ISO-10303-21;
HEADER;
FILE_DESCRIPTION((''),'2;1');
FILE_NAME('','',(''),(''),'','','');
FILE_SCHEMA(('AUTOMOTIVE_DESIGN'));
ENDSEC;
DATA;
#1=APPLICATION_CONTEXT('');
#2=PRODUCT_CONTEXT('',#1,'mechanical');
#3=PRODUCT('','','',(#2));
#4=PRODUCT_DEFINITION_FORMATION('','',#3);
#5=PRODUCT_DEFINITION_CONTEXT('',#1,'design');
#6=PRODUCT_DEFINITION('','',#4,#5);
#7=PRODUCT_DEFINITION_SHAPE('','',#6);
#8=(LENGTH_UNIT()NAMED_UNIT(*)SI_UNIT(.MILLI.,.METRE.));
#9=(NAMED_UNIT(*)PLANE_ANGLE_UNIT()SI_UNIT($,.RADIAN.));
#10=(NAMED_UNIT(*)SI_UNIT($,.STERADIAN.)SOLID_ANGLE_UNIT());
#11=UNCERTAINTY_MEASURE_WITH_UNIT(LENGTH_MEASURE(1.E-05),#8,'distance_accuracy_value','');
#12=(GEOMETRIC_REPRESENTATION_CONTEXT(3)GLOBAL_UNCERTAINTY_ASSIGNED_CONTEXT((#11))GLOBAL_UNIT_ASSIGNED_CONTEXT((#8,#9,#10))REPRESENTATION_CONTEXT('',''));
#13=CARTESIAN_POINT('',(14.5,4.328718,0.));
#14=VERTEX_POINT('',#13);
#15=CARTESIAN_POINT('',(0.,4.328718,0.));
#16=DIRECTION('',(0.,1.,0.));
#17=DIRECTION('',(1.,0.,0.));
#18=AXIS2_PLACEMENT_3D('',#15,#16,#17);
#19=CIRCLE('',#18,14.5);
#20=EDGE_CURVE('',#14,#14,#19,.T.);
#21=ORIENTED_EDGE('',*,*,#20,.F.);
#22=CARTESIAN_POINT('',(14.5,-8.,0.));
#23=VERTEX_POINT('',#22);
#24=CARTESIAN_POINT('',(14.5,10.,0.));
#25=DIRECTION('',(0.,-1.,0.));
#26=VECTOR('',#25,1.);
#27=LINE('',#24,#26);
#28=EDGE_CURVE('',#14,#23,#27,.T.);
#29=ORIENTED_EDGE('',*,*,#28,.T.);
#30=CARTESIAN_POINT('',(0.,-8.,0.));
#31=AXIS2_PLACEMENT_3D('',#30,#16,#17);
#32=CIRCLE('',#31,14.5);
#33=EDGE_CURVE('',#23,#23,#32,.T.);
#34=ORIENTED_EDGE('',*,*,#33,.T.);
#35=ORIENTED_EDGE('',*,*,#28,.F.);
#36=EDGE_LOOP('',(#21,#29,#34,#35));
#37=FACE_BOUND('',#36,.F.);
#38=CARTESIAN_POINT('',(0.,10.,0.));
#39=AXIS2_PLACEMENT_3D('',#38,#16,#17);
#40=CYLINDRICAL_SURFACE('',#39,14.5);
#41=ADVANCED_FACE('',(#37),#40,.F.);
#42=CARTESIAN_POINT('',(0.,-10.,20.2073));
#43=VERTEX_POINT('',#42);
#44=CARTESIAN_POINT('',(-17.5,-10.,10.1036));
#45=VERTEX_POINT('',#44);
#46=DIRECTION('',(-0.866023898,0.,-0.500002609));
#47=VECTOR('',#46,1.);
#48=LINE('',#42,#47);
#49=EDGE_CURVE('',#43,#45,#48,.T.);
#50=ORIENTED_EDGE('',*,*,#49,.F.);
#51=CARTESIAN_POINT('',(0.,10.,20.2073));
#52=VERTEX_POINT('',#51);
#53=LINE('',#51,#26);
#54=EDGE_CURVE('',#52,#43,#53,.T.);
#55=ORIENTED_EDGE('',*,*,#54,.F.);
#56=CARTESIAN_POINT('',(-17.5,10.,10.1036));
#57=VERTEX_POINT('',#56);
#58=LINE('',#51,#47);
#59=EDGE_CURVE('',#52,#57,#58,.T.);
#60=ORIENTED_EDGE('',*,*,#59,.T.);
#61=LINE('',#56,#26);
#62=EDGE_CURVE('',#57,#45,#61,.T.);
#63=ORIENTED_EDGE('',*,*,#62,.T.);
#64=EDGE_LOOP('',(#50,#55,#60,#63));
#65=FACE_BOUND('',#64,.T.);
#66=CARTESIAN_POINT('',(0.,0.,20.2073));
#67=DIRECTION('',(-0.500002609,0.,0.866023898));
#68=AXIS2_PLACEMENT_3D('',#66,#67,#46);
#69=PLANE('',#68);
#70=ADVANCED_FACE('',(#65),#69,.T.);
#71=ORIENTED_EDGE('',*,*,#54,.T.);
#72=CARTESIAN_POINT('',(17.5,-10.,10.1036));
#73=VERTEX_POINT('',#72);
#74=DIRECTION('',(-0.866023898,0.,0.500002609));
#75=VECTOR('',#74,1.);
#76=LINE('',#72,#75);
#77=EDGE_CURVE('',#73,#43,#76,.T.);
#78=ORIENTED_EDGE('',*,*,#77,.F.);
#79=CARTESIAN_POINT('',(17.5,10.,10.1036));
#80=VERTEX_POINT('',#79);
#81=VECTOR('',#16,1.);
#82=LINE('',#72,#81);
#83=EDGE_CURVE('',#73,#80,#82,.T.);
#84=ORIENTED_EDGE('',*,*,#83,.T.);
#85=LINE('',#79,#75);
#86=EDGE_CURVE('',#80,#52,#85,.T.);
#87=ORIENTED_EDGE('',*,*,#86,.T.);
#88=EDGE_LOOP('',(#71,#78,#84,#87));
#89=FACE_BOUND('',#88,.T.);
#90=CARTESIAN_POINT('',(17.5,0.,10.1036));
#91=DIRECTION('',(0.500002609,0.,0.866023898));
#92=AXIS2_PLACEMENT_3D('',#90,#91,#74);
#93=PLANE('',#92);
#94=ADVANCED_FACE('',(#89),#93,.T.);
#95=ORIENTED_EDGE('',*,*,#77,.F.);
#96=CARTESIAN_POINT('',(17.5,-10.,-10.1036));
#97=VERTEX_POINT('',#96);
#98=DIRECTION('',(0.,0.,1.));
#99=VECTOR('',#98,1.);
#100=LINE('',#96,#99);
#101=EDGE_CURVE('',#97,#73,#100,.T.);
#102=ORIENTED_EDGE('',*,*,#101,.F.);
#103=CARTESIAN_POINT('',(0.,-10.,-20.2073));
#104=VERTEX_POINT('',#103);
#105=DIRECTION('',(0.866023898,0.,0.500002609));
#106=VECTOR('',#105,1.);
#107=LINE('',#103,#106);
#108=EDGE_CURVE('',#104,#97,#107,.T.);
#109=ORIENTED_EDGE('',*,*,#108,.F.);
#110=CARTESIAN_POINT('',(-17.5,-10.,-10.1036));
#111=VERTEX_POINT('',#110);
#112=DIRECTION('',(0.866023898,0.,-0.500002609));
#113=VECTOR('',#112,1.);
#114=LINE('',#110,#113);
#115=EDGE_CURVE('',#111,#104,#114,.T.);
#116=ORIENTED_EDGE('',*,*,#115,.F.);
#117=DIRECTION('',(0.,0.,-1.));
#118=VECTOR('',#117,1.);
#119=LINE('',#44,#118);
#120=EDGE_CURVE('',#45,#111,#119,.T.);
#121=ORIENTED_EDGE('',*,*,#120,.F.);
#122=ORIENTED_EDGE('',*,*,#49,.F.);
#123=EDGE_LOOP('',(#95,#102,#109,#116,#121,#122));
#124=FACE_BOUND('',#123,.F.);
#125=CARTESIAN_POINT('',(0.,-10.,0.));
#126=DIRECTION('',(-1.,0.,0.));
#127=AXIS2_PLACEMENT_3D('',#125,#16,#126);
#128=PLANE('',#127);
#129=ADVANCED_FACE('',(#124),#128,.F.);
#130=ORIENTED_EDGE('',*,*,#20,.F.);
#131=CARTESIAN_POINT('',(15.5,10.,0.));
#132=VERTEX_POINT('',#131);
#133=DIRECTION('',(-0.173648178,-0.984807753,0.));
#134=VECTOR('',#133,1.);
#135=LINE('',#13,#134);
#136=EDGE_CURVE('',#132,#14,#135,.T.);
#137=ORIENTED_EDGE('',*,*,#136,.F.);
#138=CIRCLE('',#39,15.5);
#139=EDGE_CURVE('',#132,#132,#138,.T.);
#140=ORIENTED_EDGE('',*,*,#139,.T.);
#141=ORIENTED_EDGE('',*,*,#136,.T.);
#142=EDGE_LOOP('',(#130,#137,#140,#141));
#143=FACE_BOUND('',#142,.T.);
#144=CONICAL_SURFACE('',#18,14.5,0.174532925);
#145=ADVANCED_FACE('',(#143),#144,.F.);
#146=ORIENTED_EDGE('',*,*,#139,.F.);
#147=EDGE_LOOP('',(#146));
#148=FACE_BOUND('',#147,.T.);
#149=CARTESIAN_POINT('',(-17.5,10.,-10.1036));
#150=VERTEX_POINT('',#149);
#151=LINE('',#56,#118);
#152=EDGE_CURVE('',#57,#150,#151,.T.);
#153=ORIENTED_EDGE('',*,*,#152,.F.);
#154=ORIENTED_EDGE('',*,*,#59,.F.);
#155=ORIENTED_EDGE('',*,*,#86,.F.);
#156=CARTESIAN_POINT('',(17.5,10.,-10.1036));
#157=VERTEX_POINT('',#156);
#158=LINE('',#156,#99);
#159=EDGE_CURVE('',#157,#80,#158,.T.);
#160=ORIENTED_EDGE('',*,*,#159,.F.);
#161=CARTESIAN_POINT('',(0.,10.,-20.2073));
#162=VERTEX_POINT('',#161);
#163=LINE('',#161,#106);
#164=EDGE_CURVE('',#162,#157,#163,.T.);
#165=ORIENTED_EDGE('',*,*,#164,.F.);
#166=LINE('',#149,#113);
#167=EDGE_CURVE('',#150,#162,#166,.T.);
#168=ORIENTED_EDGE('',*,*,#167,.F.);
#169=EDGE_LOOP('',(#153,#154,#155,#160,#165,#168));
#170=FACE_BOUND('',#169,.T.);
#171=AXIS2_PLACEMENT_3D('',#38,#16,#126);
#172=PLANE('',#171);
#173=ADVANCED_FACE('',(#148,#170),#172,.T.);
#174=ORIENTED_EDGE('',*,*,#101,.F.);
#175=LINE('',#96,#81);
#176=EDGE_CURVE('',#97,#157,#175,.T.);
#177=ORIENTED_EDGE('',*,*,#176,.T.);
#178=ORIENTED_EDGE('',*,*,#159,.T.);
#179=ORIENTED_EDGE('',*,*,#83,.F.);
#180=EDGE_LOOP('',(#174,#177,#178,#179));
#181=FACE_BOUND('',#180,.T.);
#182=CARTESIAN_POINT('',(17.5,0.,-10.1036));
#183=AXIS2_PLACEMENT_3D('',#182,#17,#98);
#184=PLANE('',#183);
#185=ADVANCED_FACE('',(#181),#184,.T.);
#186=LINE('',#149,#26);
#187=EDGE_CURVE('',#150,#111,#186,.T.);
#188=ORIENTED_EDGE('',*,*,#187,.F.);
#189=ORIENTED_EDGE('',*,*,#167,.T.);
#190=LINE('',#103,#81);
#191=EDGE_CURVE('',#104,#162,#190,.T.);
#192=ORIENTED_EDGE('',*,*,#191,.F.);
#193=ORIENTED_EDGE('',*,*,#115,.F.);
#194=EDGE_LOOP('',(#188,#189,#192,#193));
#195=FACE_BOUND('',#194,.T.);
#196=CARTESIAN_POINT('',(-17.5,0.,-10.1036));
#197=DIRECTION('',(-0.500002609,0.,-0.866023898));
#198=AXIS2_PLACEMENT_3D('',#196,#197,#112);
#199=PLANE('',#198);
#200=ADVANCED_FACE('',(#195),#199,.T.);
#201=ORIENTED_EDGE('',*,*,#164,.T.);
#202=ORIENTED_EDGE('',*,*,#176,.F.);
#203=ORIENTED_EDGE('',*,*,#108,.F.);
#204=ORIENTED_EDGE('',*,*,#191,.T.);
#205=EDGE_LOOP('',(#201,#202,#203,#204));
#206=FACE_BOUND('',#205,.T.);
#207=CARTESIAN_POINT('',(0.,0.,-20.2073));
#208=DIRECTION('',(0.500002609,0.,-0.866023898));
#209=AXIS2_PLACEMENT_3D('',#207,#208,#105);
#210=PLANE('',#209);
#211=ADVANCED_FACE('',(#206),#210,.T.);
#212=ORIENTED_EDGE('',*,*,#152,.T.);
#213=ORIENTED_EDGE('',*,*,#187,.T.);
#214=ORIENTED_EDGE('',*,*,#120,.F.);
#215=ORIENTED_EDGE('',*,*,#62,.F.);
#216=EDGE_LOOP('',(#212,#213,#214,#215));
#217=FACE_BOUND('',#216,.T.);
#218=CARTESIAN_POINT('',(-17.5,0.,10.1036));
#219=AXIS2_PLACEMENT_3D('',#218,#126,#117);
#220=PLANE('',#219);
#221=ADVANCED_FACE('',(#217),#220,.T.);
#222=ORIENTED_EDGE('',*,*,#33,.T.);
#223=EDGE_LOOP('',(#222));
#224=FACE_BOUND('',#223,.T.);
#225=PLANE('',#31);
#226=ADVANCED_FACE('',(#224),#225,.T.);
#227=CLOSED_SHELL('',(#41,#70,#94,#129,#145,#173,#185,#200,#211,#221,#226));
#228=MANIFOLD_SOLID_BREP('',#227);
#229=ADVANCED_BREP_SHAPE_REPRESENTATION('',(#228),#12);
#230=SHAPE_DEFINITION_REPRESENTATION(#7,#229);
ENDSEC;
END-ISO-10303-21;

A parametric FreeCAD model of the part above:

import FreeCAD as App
import Part
import Sketcher
Q = App.Units.Quantity


def edges_at(feature, points):
    """Names of the edges that pass closest to the given points."""
    edges = feature.Shape.Edges
    near = lambda p: min(range(len(edges)), key=lambda i: edges[i].distToShape(Part.Vertex(*p))[0])
    return sorted({f"Edge{near(p) + 1}" for p in points})

doc = App.newDocument("Part")
body = doc.addObject("PartDesign::Body", "Body")

sketch1 = doc.addObject("Sketcher::SketchObject", "Sketch")
body.addObject(sketch1)
sketch1.AttachmentSupport = (doc.XZ_Plane, [""])
sketch1.MapMode = "FlatFace"
sketch1.addGeometry([
    Part.LineSegment(App.Vector(0, 20, 0), App.Vector(18, 10, 0)),
    Part.LineSegment(App.Vector(18, 10, 0), App.Vector(18, -10, 0)),
    Part.LineSegment(App.Vector(18, -10, 0), App.Vector(0, -20, 0)),
    Part.LineSegment(App.Vector(0, -20, 0), App.Vector(-18, -10, 0)),
    Part.LineSegment(App.Vector(-18, -10, 0), App.Vector(-18, 10, 0)),
    Part.LineSegment(App.Vector(-18, 10, 0), App.Vector(0, 20, 0)),
], False)
sketch1.addConstraint([
    Sketcher.Constraint("Coincident", 0, 2, 1, 1),
    Sketcher.Constraint("Coincident", 1, 2, 2, 1),
    Sketcher.Constraint("Coincident", 2, 2, 3, 1),
    Sketcher.Constraint("Coincident", 3, 2, 4, 1),
    Sketcher.Constraint("Coincident", 4, 2, 5, 1),
    Sketcher.Constraint("Coincident", 5, 2, 0, 1),
    Sketcher.Constraint("Vertical", 1),
    Sketcher.Constraint("Vertical", 4),
    Sketcher.Constraint("Symmetric", 0, 2, 3, 2, -1, 1),
    Sketcher.Constraint("Symmetric", 2, 2, 5, 2, -1, 1),
    Sketcher.Constraint("PointOnObject", 2, 2, -2),
    Sketcher.Constraint("Parallel", 2, 5),
    Sketcher.Constraint("Horizontal", 1, 2, 3, 2),
    Sketcher.Constraint("DistanceX", 3, 2, 1, 2, Q("35 mm")),
    Sketcher.Constraint("Angle", 0, Q("-30.0002 deg")),
    Sketcher.Constraint("DistanceY", 1, 2, 1, 1, Q("20.2072 mm")),
])
pad1 = doc.addObject("PartDesign::Pad", "Pad")
body.addObject(pad1)
pad1.Profile = sketch1
pad1.Length = 20
pad1.Midplane = True

sketch2 = doc.addObject("Sketcher::SketchObject", "Sketch001")
body.addObject(sketch2)
sketch2.AttachmentSupport = (doc.XZ_Plane, [""])
sketch2.MapMode = "FlatFace"
sketch2.AttachmentOffset = App.Placement(App.Vector(0, 0, -10), App.Rotation())
sketch2.addGeometry(Part.Circle(App.Vector(0, 0, 0), App.Vector(0, 0, 1), 14), False)
sketch2.addConstraint([
    Sketcher.Constraint("Coincident", 0, 3, -1, 1),
    Sketcher.Constraint("Diameter", 0, Q("29 mm")),
])
pocket1 = doc.addObject("PartDesign::Pocket", "Pocket")
body.addObject(pocket1)
pocket1.Profile = sketch2
pocket1.Length = 18
pocket1.Reversed = True
doc.recompute()

chamfer = doc.addObject("PartDesign::Chamfer", "Chamfer")
body.addObject(chamfer)
chamfer.Base = (pocket1, edges_at(pocket1, [(-14.5, 10, 0)]))
chamfer.ChamferType = "Distance and Angle"
chamfer.Size = 1
chamfer.Angle = 80

doc.recompute()
